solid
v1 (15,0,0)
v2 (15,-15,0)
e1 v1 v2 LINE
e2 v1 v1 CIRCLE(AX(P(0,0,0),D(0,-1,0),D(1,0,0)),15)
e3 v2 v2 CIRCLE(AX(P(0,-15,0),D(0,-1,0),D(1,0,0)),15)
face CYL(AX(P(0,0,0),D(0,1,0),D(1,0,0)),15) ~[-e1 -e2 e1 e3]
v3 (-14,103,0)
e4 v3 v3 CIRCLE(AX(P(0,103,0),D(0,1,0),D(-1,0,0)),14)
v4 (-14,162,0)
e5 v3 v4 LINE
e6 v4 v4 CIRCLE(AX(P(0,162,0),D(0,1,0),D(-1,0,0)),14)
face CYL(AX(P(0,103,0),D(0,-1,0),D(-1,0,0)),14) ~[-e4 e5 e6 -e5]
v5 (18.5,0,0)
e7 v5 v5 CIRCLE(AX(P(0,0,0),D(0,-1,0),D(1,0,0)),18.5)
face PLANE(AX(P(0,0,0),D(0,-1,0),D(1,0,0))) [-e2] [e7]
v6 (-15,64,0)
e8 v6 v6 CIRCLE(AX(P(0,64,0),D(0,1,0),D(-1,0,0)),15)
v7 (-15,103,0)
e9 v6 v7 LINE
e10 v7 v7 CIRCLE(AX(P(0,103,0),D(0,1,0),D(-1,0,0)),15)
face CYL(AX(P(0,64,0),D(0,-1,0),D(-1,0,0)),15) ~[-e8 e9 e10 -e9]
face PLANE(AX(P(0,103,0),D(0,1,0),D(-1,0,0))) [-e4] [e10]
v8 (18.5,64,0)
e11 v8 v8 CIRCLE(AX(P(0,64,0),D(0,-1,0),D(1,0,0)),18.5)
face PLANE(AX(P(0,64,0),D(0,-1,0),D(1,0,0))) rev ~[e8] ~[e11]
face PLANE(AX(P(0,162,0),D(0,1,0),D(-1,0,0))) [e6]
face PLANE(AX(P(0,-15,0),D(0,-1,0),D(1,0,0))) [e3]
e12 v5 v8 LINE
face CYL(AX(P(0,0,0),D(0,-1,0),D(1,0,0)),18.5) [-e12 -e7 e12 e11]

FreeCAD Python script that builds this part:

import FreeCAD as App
import Part
import Sketcher

doc = App.newDocument("Part")
body = doc.addObject("PartDesign::Body", "Body")

sketch1 = body.newObject("Sketcher::SketchObject", "Sketch")
sketch1.AttachmentSupport = (doc.getObject("XZ_Plane"), [""])
sketch1.MapMode = "FlatFace"
sketch1.addGeometry(Part.Circle(App.Vector(0, 0, 0), App.Vector(0, 0, 1), 15), False)
sketch1.addConstraint(Sketcher.Constraint("Coincident", 0, 3, -1, 1))
sketch1.addConstraint(Sketcher.Constraint("Diameter", 0, 30.0))
pad1 = body.newObject("PartDesign::Pad", "Pad")
pad1.Profile = sketch1
pad1.Length = 15

sketch2 = body.newObject("Sketcher::SketchObject", "Sketch001")
sketch2.AttachmentSupport = (doc.getObject("XZ_Plane"), [""])
sketch2.MapMode = "FlatFace"
sketch2.addGeometry(Part.Circle(App.Vector(0, 0, 0), App.Vector(0, 0, 1), 18), False)
sketch2.addConstraint(Sketcher.Constraint("Coincident", 0, 3, -1, 1))
sketch2.addConstraint(Sketcher.Constraint("Diameter", 0, 37.0))
pad2 = body.newObject("PartDesign::Pad", "Pad001")
pad2.Profile = sketch2
pad2.Length = 64
pad2.Reversed = True

sketch3 = body.newObject("Sketcher::SketchObject", "Sketch002")
sketch3.AttachmentSupport = (doc.getObject("XZ_Plane"), [""])
sketch3.MapMode = "FlatFace"
sketch3.AttachmentOffset = App.Placement(App.Vector(0, 0, -64), App.Rotation())
sketch3.addGeometry(Part.Circle(App.Vector(0, 0, 0), App.Vector(0, 0, 1), 15), False)
sketch3.addConstraint(Sketcher.Constraint("Coincident", 0, 3, -1, 1))
sketch3.addConstraint(Sketcher.Constraint("Diameter", 0, 30.0))
pad3 = body.newObject("PartDesign::Pad", "Pad002")
pad3.Profile = sketch3
pad3.Length = 39
pad3.Reversed = True

sketch4 = body.newObject("Sketcher::SketchObject", "Sketch003")
sketch4.AttachmentSupport = (doc.getObject("XZ_Plane"), [""])
sketch4.MapMode = "FlatFace"
sketch4.AttachmentOffset = App.Placement(App.Vector(0, 0, -103), App.Rotation())
sketch4.addGeometry(Part.Circle(App.Vector(0, 0, 0), App.Vector(0, 0, 1), 14), False)
sketch4.addConstraint(Sketcher.Constraint("Coincident", 0, 3, -1, 1))
sketch4.addConstraint(Sketcher.Constraint("Diameter", 0, 28.0))
pad4 = body.newObject("PartDesign::Pad", "Pad003")
pad4.Profile = sketch4
pad4.Length = 59
pad4.Reversed = True

doc.recompute()
